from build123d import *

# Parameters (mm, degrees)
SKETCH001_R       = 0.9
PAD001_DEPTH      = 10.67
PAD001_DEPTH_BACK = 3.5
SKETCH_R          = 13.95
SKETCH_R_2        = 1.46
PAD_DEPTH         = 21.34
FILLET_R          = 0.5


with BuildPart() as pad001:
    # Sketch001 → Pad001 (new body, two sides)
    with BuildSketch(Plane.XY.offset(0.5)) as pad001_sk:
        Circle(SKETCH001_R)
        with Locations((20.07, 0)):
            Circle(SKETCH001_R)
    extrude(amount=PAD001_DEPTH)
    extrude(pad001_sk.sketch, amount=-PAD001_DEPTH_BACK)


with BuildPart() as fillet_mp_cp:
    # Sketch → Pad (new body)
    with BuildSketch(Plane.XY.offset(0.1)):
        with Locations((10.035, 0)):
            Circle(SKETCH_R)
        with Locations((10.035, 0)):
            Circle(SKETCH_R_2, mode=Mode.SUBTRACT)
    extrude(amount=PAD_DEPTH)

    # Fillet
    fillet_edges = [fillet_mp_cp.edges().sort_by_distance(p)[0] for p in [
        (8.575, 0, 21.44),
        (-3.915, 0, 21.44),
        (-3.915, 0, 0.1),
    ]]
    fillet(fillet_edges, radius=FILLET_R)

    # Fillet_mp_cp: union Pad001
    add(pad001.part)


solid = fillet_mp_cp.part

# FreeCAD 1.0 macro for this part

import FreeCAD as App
import Part
import Sketcher

V = App.Vector


def edges_at(feature, points):
    """Names of the edges that pass closest to the given points."""
    edges = feature.Shape.Edges
    near = lambda p: min(range(len(edges)), key=lambda i: edges[i].distToShape(Part.Vertex(*p))[0])
    return sorted({f"Edge{near(p) + 1}" for p in points})

doc = App.newDocument("Part")
body = doc.addObject("PartDesign::Body", "Body")
body.AllowCompound = True

sketch1 = body.newObject("Sketcher::SketchObject", "Sketch")
sketch1.AttachmentSupport = (doc.getObject("XY_Plane"), [""])
sketch1.MapMode = "FlatFace"
sketch1.AttachmentOffset = App.Placement(V(0, 0, 0.5), App.Rotation())
sketch1.addGeometry([
    Part.Circle(V(0, 0, 0), V(0, 0, 1), 0.9),
    Part.Circle(V(20.1, 0, 0), V(0, 0, 1), 0.9),
], False)
sketch1.addConstraint([
    Sketcher.Constraint("Coincident", 0, 3, -1, 1),
    Sketcher.Constraint("Equal", 0, 1),
    Sketcher.Constraint("PointOnObject", 1, 3, -1),
    Sketcher.Constraint("Diameter", 0, 1.8),
    Sketcher.Constraint("DistanceX", -1, 1, 1, 3, 20.07),
])
pad1 = body.newObject("PartDesign::Pad", "Pad")
pad1.Profile = sketch1
pad1.Type = "TwoLengths"
pad1.Length = 10.67
pad1.Length2 = 3.5
body2 = doc.addObject("PartDesign::Body", "Body001")

sketch2 = body2.newObject("Sketcher::SketchObject", "Sketch001")
sketch2.AttachmentSupport = (doc.getObject("XY_Plane001"), [""])
sketch2.MapMode = "FlatFace"
sketch2.AttachmentOffset = App.Placement(V(0, 0, 0.1), App.Rotation())
sketch2.addGeometry([
    Part.Circle(V(10, 0, 0), V(0, 0, 1), 13.9),
    Part.Circle(V(10, 0, 0), V(0, 0, 1), 1.5),
], False)
sketch2.addConstraint([
    Sketcher.Constraint("Coincident", 1, 3, 0, 3),
    Sketcher.Constraint("PointOnObject", 0, 3, -1),
    Sketcher.Constraint("Diameter", 0, 27.9),
    Sketcher.Constraint("Diameter", 1, 2.92),
    Sketcher.Constraint("DistanceX", -1, 1, 0, 3, 10.035),
])
pad2 = body2.newObject("PartDesign::Pad", "Pad001")
pad2.Profile = sketch2
pad2.Length = 21.34
doc.recompute()

fillet = body2.newObject("PartDesign::Fillet", "Fillet")
fillet.Base = (pad2, edges_at(pad2, [(8.575, 0, 21.44), (-3.915, 0, 21.44), (-3.915, 0, 0.1)]))
fillet.Radius = 0.5
doc.recompute()

boolean = body2.newObject("PartDesign::Boolean", "Boolean")
boolean.Type = "Fuse"
boolean.addObjects([body])

doc.recompute()
